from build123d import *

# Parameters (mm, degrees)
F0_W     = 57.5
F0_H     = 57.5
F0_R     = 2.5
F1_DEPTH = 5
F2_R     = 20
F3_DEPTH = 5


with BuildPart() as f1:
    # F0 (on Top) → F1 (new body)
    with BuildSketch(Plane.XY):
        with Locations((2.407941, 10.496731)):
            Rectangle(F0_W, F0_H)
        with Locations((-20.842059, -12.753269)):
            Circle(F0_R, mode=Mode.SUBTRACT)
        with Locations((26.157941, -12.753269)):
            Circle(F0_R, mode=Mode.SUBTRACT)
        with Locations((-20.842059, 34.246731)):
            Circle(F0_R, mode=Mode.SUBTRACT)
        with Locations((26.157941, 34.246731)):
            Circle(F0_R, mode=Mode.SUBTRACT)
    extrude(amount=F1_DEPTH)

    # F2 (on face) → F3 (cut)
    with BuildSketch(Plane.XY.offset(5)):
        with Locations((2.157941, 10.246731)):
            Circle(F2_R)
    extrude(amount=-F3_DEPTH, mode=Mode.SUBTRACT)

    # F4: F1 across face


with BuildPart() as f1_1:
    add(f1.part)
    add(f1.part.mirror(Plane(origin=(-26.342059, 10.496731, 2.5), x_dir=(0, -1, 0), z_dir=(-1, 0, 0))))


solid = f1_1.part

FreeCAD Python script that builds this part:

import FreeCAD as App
import Part
import Sketcher

V = App.Vector
Q = App.Units.Quantity


def add_polygon(sketch, points):
    """Adds a closed chain of lines whose ends are joined by coincident constraints."""
    first, n = sketch.GeometryCount, len(points)
    for a, b in zip(points, points[1:] + points[:1]):
        sketch.addGeometry(Part.LineSegment(App.Vector(*a, 0), App.Vector(*b, 0)), False)
    for i in range(n):
        sketch.addConstraint(Sketcher.Constraint("Coincident", first + i, 2, first + (i + 1) % n, 1))

doc = App.newDocument("Part")
body = doc.addObject("PartDesign::Body", "Body")

# Sketch on XY plane
sketch1 = body.newObject("Sketcher::SketchObject", "Sketch")
sketch1.AttachmentSupport = (doc.getObject("XY_Plane"), [""])
sketch1.MapMode = "FlatFace"
add_polygon(sketch1, [(-26.3, 39.2), (-26.3, -18.3), (31.2, -18.3), (31.2, 39.2)])  # lines 0-3
sketch1.addGeometry(Part.Circle(V(-20.8, -12.8, 0), V(0, 0, 1), 2.5), False)  # 4
sketch1.addGeometry(Part.Circle(V(26.2, -12.8, 0), V(0, 0, 1), 2.5), False)  # 5
sketch1.addGeometry(Part.Circle(V(-20.8, 34.2, 0), V(0, 0, 1), 2.5), False)  # 6
sketch1.addGeometry(Part.Circle(V(26.2, 34.2, 0), V(0, 0, 1), 2.5), False)  # 7
sketch1.addConstraint([
    Sketcher.Constraint("Vertical", 0),
    Sketcher.Constraint("Horizontal", 1),
    Sketcher.Constraint("Vertical", 2),
    Sketcher.Constraint("Horizontal", 3),
    Sketcher.Constraint("Equal", 4, 5),
    Sketcher.Constraint("Equal", 5, 6),
    Sketcher.Constraint("Equal", 6, 7),
    Sketcher.Constraint("Horizontal", 4, 3, 5, 3),
    Sketcher.Constraint("Horizontal", 6, 3, 7, 3),
    Sketcher.Constraint("Vertical", 4, 3, 6, 3),
    Sketcher.Constraint("Vertical", 5, 3, 7, 3),
    Sketcher.Constraint("Equal", 3, 0),
    Sketcher.Constraint("Diameter", 4, Q("5 mm")),
    Sketcher.Constraint("DistanceX", 1, 1, 1, 2, Q("57.5 mm")),
    Sketcher.Constraint("DistanceX", 4, 3, 5, 3, Q("47 mm")),
    Sketcher.Constraint("DistanceY", 4, 3, 6, 3, Q("47 mm")),
    Sketcher.Constraint("DistanceX", 5, 3, 1, 2, Q("5 mm")),
    Sketcher.Constraint("DistanceY", 7, 3, 2, 2, Q("5 mm")),
    Sketcher.Constraint("DistanceX", 4, 3, -1, 1, Q("20.842059 mm")),
    Sketcher.Constraint("DistanceY", 4, 3, -1, 1, Q("12.753269 mm")),
])
pad1 = body.newObject("PartDesign::Pad", "Pad")
pad1.Profile = sketch1
pad1.Length = 5

# Sketch on XY plane
sketch2 = body.newObject("Sketcher::SketchObject", "Sketch001")
sketch2.AttachmentSupport = (doc.getObject("XY_Plane"), [""])
sketch2.MapMode = "FlatFace"
sketch2.AttachmentOffset = App.Placement(V(0, 0, 5), App.Rotation())
sketch2.addGeometry(Part.Circle(V(2, 10, 0), V(0, 0, 1), 20), False)
sketch2.addConstraint([
    Sketcher.Constraint("Diameter", 0, Q("40 mm")),
    Sketcher.Constraint("DistanceX", -1, 1, 0, 3, Q("2.157941 mm")),
    Sketcher.Constraint("DistanceY", -1, 1, 0, 3, Q("10.246731 mm")),
])
pocket1 = body.newObject("PartDesign::Pocket", "Pocket")
pocket1.Profile = sketch2
pocket1.Length = 5
body2 = doc.addObject("PartDesign::Body", "Body001")
doc.recompute()

body2.BaseFeature = body
doc.recompute()

mirroring = doc.addObject("Part::Mirroring", "Mirroring")
mirroring.Source = body
mirroring.Base = V(-26.342059, 10.496731, 2.5)
mirroring.Normal = V(-1, 0, 0)
body3 = doc.addObject("PartDesign::Body", "Body002")
body3.BaseFeature = mirroring
boolean = body2.newObject("PartDesign::Boolean", "Boolean")
boolean.Type = "Fuse"
boolean.addObjects([body3])
doc.recompute()
mirroring.Visibility = False

doc.recompute()
